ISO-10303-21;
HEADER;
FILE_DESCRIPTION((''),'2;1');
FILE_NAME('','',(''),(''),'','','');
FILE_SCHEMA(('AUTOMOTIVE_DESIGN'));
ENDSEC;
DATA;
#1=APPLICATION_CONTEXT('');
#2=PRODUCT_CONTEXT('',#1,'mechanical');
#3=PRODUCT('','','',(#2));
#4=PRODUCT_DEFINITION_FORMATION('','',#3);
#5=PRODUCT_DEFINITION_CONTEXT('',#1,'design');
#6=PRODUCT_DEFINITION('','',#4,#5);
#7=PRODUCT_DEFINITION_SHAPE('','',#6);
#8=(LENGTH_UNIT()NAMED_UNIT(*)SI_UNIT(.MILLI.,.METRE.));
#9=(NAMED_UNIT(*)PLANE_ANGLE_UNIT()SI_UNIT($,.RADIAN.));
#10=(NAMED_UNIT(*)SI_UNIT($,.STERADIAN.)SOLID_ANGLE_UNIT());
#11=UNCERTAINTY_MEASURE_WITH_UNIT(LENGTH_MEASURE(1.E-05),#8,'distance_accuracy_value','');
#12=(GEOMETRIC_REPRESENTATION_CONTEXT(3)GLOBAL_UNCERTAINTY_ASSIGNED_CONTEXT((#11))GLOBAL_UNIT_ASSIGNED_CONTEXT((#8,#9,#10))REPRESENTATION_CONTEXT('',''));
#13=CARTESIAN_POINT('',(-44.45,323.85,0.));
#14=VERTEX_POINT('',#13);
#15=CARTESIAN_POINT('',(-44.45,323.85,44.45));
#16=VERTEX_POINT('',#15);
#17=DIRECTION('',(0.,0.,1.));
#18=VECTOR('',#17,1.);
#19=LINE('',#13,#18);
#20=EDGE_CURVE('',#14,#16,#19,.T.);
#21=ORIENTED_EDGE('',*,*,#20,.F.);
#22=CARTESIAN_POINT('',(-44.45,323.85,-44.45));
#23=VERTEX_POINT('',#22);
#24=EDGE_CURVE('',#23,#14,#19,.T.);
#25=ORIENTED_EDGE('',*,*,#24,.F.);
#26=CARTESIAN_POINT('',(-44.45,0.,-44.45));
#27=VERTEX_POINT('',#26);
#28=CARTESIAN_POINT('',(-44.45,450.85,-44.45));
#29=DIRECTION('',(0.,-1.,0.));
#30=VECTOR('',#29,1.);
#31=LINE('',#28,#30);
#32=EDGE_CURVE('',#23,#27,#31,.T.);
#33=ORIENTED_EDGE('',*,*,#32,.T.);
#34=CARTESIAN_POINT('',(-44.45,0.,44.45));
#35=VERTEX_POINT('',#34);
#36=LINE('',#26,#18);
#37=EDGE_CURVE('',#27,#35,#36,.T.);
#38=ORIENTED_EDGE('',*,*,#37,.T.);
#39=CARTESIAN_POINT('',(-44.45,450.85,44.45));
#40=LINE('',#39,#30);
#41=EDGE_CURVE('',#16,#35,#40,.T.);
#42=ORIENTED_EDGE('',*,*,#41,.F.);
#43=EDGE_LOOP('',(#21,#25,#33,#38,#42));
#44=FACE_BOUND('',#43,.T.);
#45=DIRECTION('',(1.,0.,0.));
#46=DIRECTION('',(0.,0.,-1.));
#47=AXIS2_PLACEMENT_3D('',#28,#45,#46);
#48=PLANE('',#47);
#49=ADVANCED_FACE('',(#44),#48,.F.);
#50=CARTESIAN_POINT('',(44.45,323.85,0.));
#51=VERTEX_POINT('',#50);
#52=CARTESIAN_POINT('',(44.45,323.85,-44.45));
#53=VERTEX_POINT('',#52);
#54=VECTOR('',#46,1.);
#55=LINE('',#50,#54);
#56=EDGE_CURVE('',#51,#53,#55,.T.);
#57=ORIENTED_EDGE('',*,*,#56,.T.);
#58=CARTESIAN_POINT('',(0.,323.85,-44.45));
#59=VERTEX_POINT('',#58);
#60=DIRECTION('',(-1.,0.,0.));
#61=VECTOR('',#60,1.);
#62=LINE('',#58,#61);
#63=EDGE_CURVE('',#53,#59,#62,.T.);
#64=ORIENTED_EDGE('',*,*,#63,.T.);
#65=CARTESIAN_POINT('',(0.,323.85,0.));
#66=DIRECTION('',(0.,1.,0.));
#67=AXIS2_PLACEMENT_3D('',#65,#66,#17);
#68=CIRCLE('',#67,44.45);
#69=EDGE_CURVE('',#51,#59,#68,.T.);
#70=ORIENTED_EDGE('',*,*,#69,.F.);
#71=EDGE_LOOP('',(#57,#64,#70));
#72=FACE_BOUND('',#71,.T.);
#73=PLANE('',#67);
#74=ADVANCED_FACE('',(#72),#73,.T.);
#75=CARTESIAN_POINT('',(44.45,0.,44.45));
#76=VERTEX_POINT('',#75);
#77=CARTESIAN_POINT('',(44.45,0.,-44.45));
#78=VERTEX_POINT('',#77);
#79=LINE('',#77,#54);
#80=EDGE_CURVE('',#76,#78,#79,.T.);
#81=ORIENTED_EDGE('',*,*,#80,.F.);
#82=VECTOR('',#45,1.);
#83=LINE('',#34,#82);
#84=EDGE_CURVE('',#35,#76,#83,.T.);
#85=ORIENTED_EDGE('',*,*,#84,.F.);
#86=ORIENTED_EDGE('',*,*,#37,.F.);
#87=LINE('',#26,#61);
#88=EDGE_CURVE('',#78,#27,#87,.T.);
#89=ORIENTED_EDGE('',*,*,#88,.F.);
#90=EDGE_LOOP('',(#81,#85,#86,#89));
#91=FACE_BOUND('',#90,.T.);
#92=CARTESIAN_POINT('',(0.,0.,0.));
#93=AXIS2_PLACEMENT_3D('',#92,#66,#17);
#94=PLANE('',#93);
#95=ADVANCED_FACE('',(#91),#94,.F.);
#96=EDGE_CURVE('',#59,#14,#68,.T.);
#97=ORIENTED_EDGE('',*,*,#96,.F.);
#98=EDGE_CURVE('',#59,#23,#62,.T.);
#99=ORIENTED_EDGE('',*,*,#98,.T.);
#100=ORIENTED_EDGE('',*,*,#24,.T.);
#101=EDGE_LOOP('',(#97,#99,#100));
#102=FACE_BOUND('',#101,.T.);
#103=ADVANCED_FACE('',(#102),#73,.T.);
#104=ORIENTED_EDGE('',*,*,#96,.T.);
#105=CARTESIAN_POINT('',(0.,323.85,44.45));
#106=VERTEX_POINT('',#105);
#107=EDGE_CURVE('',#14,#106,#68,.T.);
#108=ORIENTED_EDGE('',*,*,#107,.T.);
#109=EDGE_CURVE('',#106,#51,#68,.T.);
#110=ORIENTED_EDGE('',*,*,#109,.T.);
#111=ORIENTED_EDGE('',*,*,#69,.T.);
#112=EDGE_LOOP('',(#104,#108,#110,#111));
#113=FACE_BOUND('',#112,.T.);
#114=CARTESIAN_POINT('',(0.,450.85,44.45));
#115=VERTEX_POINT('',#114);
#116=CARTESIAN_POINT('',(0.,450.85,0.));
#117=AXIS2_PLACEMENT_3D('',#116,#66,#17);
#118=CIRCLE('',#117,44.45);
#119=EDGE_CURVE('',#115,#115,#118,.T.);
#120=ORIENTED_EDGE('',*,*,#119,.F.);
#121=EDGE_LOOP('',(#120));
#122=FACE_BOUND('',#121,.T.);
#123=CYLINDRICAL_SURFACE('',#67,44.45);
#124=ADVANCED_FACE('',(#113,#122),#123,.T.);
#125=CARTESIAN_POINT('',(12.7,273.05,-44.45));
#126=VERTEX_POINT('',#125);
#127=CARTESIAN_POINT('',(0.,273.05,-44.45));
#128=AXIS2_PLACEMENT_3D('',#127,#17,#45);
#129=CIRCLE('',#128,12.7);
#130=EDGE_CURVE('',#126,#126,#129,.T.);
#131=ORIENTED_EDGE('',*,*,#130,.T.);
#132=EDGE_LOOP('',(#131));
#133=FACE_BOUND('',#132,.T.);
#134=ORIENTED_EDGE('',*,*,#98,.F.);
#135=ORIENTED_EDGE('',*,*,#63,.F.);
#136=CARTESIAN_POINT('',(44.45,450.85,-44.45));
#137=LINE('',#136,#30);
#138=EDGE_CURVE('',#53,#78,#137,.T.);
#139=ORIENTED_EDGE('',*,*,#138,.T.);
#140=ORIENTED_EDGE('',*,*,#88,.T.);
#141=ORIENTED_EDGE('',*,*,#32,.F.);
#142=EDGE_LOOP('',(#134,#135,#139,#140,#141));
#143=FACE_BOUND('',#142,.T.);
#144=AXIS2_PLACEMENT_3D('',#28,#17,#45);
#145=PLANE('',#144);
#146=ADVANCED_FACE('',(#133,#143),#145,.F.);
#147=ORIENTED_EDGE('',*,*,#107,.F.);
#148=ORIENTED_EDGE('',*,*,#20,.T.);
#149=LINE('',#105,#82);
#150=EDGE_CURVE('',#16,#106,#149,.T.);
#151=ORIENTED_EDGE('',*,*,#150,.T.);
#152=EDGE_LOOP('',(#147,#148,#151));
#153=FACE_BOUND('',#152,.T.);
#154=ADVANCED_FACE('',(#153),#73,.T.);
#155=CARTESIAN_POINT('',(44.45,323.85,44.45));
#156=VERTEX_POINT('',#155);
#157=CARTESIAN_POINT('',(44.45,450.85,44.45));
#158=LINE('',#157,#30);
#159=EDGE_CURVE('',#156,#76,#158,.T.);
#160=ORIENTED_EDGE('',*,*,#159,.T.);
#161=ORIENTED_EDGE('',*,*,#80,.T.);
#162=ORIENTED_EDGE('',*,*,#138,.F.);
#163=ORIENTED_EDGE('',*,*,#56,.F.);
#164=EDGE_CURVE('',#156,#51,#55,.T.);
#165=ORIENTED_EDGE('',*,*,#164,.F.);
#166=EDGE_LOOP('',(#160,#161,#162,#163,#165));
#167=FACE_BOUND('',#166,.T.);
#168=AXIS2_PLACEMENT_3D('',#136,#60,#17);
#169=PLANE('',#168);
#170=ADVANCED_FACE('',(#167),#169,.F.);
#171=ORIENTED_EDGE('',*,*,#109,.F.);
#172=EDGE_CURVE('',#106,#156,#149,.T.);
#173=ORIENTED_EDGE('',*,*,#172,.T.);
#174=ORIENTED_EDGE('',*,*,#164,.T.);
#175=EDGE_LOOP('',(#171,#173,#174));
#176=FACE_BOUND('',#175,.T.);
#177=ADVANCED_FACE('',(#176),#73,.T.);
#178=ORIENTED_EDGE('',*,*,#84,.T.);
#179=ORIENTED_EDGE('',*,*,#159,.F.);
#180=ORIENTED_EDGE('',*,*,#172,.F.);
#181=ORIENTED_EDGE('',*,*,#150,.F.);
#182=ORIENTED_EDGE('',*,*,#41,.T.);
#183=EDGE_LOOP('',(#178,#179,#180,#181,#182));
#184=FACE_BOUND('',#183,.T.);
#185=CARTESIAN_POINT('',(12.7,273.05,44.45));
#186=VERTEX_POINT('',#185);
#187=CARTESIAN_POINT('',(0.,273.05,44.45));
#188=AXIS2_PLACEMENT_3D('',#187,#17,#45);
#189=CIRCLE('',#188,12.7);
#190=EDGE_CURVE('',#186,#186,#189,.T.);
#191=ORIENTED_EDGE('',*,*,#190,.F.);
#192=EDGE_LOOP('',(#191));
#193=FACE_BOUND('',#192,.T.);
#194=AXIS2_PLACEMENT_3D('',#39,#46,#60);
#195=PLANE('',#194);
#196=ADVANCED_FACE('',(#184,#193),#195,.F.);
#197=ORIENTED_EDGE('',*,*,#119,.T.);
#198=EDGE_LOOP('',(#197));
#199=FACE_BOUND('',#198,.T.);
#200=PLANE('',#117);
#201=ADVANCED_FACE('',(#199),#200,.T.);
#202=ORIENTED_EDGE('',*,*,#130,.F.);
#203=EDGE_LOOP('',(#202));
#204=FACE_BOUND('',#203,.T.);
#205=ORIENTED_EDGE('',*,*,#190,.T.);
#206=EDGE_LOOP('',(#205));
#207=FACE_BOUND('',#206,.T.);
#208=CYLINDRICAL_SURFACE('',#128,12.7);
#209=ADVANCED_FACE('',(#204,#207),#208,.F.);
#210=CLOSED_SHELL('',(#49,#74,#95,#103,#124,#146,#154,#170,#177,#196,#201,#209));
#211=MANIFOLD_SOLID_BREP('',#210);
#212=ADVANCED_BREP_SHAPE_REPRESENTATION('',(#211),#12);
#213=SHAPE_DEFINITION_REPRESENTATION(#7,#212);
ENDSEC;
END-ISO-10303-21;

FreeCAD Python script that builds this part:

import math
import FreeCAD as App
import Part
import Sketcher

V = App.Vector
Q = App.Units.Quantity

doc = App.newDocument("Part")
body = doc.addObject("PartDesign::Body", "Body")

# Sketch on XZ plane
sketch1 = doc.addObject("Sketcher::SketchObject", "Sketch")
body.addObject(sketch1)
sketch1.AttachmentSupport = (doc.XZ_Plane, [""])
sketch1.MapMode = "FlatFace"
sketch1.addGeometry([
    Part.LineSegment(V(-44, -44, 0), V(-44, 44, 0)),
    Part.LineSegment(V(-44, 44, 0), V(44, 44, 0)),
    Part.LineSegment(V(44, 44, 0), V(44, -44, 0)),
    Part.LineSegment(V(44, -44, 0), V(-44, -44, 0)),
], False)
sketch1.addConstraint([
    Sketcher.Constraint("Coincident", 0, 2, 1, 1),
    Sketcher.Constraint("Coincident", 1, 2, 2, 1),
    Sketcher.Constraint("Coincident", 2, 2, 3, 1),
    Sketcher.Constraint("Coincident", 3, 2, 0, 1),
    Sketcher.Constraint("Vertical", 0),
    Sketcher.Constraint("Horizontal", 1),
    Sketcher.Constraint("Vertical", 2),
    Sketcher.Constraint("Horizontal", 3),
    Sketcher.Constraint("Symmetric", 0, 2, 2, 2, -1, 1),
    Sketcher.Constraint("Equal", 3, 0),
    Sketcher.Constraint("DistanceX", 1, 1, 1, 2, Q("3.5 in")),
])
pad1 = doc.addObject("PartDesign::Pad", "Pad")
body.addObject(pad1)
pad1.Profile = sketch1
pad1.Length = Q("17.75 in")
pad1.Reversed = True

# Sketch on XZ plane
sketch2 = doc.addObject("Sketcher::SketchObject", "Sketch001")
body.addObject(sketch2)
sketch2.AttachmentSupport = (doc.XZ_Plane, [""])
sketch2.MapMode = "FlatFace"
sketch2.AttachmentOffset = App.Placement(V(0, 0, -17.75 * 25.4), App.Rotation())
sketch2.addGeometry([
    Part.LineSegment(V(-44, 44, 0), V(0, 44, 0)),  # 0
    Part.ArcOfCircle(Part.Circle(V(0, 0, 0), V(0, 0, 1), 44), math.radians(90), math.radians(180)),  # 1
    Part.LineSegment(V(-44, 0, 0), V(-44, 44, 0)),  # 2
    Part.ArcOfCircle(Part.Circle(V(0, 0, 0), V(0, 0, 1), 44), math.radians(180), math.radians(270)),  # 3
    Part.LineSegment(V(0, -44, 0), V(-44, -44, 0)),  # 4
    Part.LineSegment(V(-44, -44, 0), V(-44, 0, 0)),  # 5
    Part.ArcOfCircle(Part.Circle(V(0, 0, 0), V(0, 0, 1), 44), math.radians(-90), math.radians(0)),  # 6
    Part.LineSegment(V(44, 0, 0), V(44, -44, 0)),  # 7
    Part.LineSegment(V(44, -44, 0), V(0, -44, 0)),  # 8
    Part.LineSegment(V(44, 44, 0), V(44, 0, 0)),  # 9
    Part.ArcOfCircle(Part.Circle(V(0, 0, 0), V(0, 0, 1), 44), math.radians(0), math.radians(90)),  # 10
    Part.LineSegment(V(0, 44, 0), V(44, 44, 0)),  # 11
], False)
sketch2.addConstraint([
    Sketcher.Constraint("Tangent", 0, 2, 1, 1),
    Sketcher.Constraint("Tangent", 1, 2, 2, 1),
    Sketcher.Constraint("Coincident", 2, 2, 0, 1),
    Sketcher.Constraint("Tangent", 3, 2, 4, 1),
    Sketcher.Constraint("Coincident", 4, 2, 5, 1),
    Sketcher.Constraint("Tangent", 5, 2, 3, 1),
    Sketcher.Constraint("Tangent", 6, 2, 7, 1),
    Sketcher.Constraint("Coincident", 7, 2, 8, 1),
    Sketcher.Constraint("Tangent", 8, 2, 6, 1),
    Sketcher.Constraint("Tangent", 9, 2, 10, 1),
    Sketcher.Constraint("Tangent", 10, 2, 11, 1),
    Sketcher.Constraint("Coincident", 11, 2, 9, 1),
    Sketcher.Constraint("Horizontal", 0),
    Sketcher.Constraint("Vertical", 2),
    Sketcher.Constraint("Horizontal", 4),
    Sketcher.Constraint("Vertical", 5),
    Sketcher.Constraint("Vertical", 7),
    Sketcher.Constraint("Horizontal", 8),
    Sketcher.Constraint("Vertical", 9),
    Sketcher.Constraint("Horizontal", 11),
    Sketcher.Constraint("Coincident", 1, 3, -1, 1),
    Sketcher.Constraint("Coincident", 3, 3, -1, 1),
    Sketcher.Constraint("Coincident", 6, 3, -1, 1),
    Sketcher.Constraint("Coincident", 10, 3, -1, 1),
    Sketcher.Constraint("Equal", 1, 3),
    Sketcher.Constraint("Equal", 3, 6),
    Sketcher.Constraint("Equal", 6, 10),
    Sketcher.Constraint("Radius", 1, Q("1.75 in")),
])
pocket1 = doc.addObject("PartDesign::Pocket", "Pocket")
body.addObject(pocket1)
pocket1.Profile = sketch2
pocket1.Length = Q("5 in")
pocket1.Reversed = True

# Sketch on XY plane
sketch3 = doc.addObject("Sketcher::SketchObject", "Sketch002")
body.addObject(sketch3)
sketch3.AttachmentSupport = (doc.XY_Plane, [""])
sketch3.MapMode = "FlatFace"
sketch3.addGeometry(Part.Circle(V(0, 273, 0), V(0, 0, 1), 13), False)
sketch3.addConstraint([
    Sketcher.Constraint("PointOnObject", 0, 3, -2),
    Sketcher.Constraint("Diameter", 0, Q("1 in")),
    Sketcher.Constraint("DistanceY", -1, 1, 0, 3, Q("10.75 in")),
])
pocket2 = doc.addObject("PartDesign::Pocket", "Pocket001")
body.addObject(pocket2)
pocket2.Profile = sketch3
pocket2.Type = "ThroughAll"
pocket2.Midplane = True

doc.recompute()
